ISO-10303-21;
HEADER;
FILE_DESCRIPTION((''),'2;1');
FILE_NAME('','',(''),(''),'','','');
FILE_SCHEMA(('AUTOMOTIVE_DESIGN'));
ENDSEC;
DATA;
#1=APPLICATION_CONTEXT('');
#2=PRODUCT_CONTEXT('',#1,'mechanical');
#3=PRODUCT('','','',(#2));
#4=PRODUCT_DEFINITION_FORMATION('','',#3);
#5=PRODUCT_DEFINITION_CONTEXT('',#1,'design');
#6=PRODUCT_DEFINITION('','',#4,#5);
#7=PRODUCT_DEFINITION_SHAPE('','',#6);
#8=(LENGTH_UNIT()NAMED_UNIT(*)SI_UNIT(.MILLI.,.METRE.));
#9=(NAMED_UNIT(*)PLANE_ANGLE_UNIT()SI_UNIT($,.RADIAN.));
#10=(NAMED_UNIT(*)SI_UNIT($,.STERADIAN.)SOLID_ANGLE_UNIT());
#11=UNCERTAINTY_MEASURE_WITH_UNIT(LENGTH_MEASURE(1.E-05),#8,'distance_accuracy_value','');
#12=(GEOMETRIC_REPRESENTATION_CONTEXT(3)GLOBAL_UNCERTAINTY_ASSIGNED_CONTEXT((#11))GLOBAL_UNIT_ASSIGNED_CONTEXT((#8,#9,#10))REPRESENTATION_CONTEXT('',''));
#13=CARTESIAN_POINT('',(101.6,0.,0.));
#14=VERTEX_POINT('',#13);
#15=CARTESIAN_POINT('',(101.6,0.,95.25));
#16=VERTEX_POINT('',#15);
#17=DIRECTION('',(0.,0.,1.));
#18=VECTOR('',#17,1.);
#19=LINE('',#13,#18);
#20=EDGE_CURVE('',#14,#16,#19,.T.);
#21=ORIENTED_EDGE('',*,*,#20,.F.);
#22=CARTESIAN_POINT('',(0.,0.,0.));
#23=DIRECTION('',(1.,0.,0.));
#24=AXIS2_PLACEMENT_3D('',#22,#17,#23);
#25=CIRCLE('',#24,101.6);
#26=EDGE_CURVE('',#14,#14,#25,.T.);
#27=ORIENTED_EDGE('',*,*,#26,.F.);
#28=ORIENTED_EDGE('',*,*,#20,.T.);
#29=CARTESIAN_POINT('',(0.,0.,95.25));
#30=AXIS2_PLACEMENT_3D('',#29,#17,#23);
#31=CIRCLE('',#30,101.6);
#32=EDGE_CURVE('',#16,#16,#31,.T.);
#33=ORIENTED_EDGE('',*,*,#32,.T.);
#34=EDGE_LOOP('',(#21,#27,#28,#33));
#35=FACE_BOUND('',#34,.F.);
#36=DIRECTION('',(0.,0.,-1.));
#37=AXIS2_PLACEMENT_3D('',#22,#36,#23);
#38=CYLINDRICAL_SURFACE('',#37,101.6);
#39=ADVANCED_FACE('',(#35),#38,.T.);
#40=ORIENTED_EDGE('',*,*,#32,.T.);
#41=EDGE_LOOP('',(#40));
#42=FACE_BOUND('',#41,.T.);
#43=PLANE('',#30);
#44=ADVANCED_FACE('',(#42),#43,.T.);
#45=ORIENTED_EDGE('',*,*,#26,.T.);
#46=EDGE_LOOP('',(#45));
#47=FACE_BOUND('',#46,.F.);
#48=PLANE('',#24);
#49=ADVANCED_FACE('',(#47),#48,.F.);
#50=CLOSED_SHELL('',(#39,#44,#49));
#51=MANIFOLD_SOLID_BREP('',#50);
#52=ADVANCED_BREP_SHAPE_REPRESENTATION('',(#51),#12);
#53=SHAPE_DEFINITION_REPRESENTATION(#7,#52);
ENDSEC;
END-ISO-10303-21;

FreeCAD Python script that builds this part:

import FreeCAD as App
import Part
import Sketcher
Q = App.Units.Quantity

doc = App.newDocument("Part")
body = doc.addObject("PartDesign::Body", "Body")

sketch1 = doc.addObject("Sketcher::SketchObject", "Sketch")
body.addObject(sketch1)
sketch1.AttachmentSupport = (doc.XY_Plane, [""])
sketch1.MapMode = "FlatFace"
sketch1.addGeometry(Part.Circle(App.Vector(0, 0, 0), App.Vector(0, 0, 1), 102), False)
sketch1.addConstraint(Sketcher.Constraint("Coincident", 0, 3, -1, 1))
sketch1.addConstraint(Sketcher.Constraint("Diameter", 0, Q("8 in")))
pad1 = doc.addObject("PartDesign::Pad", "Pad")
body.addObject(pad1)
pad1.Profile = sketch1
pad1.Length = Q("3.75 in")

doc.recompute()
